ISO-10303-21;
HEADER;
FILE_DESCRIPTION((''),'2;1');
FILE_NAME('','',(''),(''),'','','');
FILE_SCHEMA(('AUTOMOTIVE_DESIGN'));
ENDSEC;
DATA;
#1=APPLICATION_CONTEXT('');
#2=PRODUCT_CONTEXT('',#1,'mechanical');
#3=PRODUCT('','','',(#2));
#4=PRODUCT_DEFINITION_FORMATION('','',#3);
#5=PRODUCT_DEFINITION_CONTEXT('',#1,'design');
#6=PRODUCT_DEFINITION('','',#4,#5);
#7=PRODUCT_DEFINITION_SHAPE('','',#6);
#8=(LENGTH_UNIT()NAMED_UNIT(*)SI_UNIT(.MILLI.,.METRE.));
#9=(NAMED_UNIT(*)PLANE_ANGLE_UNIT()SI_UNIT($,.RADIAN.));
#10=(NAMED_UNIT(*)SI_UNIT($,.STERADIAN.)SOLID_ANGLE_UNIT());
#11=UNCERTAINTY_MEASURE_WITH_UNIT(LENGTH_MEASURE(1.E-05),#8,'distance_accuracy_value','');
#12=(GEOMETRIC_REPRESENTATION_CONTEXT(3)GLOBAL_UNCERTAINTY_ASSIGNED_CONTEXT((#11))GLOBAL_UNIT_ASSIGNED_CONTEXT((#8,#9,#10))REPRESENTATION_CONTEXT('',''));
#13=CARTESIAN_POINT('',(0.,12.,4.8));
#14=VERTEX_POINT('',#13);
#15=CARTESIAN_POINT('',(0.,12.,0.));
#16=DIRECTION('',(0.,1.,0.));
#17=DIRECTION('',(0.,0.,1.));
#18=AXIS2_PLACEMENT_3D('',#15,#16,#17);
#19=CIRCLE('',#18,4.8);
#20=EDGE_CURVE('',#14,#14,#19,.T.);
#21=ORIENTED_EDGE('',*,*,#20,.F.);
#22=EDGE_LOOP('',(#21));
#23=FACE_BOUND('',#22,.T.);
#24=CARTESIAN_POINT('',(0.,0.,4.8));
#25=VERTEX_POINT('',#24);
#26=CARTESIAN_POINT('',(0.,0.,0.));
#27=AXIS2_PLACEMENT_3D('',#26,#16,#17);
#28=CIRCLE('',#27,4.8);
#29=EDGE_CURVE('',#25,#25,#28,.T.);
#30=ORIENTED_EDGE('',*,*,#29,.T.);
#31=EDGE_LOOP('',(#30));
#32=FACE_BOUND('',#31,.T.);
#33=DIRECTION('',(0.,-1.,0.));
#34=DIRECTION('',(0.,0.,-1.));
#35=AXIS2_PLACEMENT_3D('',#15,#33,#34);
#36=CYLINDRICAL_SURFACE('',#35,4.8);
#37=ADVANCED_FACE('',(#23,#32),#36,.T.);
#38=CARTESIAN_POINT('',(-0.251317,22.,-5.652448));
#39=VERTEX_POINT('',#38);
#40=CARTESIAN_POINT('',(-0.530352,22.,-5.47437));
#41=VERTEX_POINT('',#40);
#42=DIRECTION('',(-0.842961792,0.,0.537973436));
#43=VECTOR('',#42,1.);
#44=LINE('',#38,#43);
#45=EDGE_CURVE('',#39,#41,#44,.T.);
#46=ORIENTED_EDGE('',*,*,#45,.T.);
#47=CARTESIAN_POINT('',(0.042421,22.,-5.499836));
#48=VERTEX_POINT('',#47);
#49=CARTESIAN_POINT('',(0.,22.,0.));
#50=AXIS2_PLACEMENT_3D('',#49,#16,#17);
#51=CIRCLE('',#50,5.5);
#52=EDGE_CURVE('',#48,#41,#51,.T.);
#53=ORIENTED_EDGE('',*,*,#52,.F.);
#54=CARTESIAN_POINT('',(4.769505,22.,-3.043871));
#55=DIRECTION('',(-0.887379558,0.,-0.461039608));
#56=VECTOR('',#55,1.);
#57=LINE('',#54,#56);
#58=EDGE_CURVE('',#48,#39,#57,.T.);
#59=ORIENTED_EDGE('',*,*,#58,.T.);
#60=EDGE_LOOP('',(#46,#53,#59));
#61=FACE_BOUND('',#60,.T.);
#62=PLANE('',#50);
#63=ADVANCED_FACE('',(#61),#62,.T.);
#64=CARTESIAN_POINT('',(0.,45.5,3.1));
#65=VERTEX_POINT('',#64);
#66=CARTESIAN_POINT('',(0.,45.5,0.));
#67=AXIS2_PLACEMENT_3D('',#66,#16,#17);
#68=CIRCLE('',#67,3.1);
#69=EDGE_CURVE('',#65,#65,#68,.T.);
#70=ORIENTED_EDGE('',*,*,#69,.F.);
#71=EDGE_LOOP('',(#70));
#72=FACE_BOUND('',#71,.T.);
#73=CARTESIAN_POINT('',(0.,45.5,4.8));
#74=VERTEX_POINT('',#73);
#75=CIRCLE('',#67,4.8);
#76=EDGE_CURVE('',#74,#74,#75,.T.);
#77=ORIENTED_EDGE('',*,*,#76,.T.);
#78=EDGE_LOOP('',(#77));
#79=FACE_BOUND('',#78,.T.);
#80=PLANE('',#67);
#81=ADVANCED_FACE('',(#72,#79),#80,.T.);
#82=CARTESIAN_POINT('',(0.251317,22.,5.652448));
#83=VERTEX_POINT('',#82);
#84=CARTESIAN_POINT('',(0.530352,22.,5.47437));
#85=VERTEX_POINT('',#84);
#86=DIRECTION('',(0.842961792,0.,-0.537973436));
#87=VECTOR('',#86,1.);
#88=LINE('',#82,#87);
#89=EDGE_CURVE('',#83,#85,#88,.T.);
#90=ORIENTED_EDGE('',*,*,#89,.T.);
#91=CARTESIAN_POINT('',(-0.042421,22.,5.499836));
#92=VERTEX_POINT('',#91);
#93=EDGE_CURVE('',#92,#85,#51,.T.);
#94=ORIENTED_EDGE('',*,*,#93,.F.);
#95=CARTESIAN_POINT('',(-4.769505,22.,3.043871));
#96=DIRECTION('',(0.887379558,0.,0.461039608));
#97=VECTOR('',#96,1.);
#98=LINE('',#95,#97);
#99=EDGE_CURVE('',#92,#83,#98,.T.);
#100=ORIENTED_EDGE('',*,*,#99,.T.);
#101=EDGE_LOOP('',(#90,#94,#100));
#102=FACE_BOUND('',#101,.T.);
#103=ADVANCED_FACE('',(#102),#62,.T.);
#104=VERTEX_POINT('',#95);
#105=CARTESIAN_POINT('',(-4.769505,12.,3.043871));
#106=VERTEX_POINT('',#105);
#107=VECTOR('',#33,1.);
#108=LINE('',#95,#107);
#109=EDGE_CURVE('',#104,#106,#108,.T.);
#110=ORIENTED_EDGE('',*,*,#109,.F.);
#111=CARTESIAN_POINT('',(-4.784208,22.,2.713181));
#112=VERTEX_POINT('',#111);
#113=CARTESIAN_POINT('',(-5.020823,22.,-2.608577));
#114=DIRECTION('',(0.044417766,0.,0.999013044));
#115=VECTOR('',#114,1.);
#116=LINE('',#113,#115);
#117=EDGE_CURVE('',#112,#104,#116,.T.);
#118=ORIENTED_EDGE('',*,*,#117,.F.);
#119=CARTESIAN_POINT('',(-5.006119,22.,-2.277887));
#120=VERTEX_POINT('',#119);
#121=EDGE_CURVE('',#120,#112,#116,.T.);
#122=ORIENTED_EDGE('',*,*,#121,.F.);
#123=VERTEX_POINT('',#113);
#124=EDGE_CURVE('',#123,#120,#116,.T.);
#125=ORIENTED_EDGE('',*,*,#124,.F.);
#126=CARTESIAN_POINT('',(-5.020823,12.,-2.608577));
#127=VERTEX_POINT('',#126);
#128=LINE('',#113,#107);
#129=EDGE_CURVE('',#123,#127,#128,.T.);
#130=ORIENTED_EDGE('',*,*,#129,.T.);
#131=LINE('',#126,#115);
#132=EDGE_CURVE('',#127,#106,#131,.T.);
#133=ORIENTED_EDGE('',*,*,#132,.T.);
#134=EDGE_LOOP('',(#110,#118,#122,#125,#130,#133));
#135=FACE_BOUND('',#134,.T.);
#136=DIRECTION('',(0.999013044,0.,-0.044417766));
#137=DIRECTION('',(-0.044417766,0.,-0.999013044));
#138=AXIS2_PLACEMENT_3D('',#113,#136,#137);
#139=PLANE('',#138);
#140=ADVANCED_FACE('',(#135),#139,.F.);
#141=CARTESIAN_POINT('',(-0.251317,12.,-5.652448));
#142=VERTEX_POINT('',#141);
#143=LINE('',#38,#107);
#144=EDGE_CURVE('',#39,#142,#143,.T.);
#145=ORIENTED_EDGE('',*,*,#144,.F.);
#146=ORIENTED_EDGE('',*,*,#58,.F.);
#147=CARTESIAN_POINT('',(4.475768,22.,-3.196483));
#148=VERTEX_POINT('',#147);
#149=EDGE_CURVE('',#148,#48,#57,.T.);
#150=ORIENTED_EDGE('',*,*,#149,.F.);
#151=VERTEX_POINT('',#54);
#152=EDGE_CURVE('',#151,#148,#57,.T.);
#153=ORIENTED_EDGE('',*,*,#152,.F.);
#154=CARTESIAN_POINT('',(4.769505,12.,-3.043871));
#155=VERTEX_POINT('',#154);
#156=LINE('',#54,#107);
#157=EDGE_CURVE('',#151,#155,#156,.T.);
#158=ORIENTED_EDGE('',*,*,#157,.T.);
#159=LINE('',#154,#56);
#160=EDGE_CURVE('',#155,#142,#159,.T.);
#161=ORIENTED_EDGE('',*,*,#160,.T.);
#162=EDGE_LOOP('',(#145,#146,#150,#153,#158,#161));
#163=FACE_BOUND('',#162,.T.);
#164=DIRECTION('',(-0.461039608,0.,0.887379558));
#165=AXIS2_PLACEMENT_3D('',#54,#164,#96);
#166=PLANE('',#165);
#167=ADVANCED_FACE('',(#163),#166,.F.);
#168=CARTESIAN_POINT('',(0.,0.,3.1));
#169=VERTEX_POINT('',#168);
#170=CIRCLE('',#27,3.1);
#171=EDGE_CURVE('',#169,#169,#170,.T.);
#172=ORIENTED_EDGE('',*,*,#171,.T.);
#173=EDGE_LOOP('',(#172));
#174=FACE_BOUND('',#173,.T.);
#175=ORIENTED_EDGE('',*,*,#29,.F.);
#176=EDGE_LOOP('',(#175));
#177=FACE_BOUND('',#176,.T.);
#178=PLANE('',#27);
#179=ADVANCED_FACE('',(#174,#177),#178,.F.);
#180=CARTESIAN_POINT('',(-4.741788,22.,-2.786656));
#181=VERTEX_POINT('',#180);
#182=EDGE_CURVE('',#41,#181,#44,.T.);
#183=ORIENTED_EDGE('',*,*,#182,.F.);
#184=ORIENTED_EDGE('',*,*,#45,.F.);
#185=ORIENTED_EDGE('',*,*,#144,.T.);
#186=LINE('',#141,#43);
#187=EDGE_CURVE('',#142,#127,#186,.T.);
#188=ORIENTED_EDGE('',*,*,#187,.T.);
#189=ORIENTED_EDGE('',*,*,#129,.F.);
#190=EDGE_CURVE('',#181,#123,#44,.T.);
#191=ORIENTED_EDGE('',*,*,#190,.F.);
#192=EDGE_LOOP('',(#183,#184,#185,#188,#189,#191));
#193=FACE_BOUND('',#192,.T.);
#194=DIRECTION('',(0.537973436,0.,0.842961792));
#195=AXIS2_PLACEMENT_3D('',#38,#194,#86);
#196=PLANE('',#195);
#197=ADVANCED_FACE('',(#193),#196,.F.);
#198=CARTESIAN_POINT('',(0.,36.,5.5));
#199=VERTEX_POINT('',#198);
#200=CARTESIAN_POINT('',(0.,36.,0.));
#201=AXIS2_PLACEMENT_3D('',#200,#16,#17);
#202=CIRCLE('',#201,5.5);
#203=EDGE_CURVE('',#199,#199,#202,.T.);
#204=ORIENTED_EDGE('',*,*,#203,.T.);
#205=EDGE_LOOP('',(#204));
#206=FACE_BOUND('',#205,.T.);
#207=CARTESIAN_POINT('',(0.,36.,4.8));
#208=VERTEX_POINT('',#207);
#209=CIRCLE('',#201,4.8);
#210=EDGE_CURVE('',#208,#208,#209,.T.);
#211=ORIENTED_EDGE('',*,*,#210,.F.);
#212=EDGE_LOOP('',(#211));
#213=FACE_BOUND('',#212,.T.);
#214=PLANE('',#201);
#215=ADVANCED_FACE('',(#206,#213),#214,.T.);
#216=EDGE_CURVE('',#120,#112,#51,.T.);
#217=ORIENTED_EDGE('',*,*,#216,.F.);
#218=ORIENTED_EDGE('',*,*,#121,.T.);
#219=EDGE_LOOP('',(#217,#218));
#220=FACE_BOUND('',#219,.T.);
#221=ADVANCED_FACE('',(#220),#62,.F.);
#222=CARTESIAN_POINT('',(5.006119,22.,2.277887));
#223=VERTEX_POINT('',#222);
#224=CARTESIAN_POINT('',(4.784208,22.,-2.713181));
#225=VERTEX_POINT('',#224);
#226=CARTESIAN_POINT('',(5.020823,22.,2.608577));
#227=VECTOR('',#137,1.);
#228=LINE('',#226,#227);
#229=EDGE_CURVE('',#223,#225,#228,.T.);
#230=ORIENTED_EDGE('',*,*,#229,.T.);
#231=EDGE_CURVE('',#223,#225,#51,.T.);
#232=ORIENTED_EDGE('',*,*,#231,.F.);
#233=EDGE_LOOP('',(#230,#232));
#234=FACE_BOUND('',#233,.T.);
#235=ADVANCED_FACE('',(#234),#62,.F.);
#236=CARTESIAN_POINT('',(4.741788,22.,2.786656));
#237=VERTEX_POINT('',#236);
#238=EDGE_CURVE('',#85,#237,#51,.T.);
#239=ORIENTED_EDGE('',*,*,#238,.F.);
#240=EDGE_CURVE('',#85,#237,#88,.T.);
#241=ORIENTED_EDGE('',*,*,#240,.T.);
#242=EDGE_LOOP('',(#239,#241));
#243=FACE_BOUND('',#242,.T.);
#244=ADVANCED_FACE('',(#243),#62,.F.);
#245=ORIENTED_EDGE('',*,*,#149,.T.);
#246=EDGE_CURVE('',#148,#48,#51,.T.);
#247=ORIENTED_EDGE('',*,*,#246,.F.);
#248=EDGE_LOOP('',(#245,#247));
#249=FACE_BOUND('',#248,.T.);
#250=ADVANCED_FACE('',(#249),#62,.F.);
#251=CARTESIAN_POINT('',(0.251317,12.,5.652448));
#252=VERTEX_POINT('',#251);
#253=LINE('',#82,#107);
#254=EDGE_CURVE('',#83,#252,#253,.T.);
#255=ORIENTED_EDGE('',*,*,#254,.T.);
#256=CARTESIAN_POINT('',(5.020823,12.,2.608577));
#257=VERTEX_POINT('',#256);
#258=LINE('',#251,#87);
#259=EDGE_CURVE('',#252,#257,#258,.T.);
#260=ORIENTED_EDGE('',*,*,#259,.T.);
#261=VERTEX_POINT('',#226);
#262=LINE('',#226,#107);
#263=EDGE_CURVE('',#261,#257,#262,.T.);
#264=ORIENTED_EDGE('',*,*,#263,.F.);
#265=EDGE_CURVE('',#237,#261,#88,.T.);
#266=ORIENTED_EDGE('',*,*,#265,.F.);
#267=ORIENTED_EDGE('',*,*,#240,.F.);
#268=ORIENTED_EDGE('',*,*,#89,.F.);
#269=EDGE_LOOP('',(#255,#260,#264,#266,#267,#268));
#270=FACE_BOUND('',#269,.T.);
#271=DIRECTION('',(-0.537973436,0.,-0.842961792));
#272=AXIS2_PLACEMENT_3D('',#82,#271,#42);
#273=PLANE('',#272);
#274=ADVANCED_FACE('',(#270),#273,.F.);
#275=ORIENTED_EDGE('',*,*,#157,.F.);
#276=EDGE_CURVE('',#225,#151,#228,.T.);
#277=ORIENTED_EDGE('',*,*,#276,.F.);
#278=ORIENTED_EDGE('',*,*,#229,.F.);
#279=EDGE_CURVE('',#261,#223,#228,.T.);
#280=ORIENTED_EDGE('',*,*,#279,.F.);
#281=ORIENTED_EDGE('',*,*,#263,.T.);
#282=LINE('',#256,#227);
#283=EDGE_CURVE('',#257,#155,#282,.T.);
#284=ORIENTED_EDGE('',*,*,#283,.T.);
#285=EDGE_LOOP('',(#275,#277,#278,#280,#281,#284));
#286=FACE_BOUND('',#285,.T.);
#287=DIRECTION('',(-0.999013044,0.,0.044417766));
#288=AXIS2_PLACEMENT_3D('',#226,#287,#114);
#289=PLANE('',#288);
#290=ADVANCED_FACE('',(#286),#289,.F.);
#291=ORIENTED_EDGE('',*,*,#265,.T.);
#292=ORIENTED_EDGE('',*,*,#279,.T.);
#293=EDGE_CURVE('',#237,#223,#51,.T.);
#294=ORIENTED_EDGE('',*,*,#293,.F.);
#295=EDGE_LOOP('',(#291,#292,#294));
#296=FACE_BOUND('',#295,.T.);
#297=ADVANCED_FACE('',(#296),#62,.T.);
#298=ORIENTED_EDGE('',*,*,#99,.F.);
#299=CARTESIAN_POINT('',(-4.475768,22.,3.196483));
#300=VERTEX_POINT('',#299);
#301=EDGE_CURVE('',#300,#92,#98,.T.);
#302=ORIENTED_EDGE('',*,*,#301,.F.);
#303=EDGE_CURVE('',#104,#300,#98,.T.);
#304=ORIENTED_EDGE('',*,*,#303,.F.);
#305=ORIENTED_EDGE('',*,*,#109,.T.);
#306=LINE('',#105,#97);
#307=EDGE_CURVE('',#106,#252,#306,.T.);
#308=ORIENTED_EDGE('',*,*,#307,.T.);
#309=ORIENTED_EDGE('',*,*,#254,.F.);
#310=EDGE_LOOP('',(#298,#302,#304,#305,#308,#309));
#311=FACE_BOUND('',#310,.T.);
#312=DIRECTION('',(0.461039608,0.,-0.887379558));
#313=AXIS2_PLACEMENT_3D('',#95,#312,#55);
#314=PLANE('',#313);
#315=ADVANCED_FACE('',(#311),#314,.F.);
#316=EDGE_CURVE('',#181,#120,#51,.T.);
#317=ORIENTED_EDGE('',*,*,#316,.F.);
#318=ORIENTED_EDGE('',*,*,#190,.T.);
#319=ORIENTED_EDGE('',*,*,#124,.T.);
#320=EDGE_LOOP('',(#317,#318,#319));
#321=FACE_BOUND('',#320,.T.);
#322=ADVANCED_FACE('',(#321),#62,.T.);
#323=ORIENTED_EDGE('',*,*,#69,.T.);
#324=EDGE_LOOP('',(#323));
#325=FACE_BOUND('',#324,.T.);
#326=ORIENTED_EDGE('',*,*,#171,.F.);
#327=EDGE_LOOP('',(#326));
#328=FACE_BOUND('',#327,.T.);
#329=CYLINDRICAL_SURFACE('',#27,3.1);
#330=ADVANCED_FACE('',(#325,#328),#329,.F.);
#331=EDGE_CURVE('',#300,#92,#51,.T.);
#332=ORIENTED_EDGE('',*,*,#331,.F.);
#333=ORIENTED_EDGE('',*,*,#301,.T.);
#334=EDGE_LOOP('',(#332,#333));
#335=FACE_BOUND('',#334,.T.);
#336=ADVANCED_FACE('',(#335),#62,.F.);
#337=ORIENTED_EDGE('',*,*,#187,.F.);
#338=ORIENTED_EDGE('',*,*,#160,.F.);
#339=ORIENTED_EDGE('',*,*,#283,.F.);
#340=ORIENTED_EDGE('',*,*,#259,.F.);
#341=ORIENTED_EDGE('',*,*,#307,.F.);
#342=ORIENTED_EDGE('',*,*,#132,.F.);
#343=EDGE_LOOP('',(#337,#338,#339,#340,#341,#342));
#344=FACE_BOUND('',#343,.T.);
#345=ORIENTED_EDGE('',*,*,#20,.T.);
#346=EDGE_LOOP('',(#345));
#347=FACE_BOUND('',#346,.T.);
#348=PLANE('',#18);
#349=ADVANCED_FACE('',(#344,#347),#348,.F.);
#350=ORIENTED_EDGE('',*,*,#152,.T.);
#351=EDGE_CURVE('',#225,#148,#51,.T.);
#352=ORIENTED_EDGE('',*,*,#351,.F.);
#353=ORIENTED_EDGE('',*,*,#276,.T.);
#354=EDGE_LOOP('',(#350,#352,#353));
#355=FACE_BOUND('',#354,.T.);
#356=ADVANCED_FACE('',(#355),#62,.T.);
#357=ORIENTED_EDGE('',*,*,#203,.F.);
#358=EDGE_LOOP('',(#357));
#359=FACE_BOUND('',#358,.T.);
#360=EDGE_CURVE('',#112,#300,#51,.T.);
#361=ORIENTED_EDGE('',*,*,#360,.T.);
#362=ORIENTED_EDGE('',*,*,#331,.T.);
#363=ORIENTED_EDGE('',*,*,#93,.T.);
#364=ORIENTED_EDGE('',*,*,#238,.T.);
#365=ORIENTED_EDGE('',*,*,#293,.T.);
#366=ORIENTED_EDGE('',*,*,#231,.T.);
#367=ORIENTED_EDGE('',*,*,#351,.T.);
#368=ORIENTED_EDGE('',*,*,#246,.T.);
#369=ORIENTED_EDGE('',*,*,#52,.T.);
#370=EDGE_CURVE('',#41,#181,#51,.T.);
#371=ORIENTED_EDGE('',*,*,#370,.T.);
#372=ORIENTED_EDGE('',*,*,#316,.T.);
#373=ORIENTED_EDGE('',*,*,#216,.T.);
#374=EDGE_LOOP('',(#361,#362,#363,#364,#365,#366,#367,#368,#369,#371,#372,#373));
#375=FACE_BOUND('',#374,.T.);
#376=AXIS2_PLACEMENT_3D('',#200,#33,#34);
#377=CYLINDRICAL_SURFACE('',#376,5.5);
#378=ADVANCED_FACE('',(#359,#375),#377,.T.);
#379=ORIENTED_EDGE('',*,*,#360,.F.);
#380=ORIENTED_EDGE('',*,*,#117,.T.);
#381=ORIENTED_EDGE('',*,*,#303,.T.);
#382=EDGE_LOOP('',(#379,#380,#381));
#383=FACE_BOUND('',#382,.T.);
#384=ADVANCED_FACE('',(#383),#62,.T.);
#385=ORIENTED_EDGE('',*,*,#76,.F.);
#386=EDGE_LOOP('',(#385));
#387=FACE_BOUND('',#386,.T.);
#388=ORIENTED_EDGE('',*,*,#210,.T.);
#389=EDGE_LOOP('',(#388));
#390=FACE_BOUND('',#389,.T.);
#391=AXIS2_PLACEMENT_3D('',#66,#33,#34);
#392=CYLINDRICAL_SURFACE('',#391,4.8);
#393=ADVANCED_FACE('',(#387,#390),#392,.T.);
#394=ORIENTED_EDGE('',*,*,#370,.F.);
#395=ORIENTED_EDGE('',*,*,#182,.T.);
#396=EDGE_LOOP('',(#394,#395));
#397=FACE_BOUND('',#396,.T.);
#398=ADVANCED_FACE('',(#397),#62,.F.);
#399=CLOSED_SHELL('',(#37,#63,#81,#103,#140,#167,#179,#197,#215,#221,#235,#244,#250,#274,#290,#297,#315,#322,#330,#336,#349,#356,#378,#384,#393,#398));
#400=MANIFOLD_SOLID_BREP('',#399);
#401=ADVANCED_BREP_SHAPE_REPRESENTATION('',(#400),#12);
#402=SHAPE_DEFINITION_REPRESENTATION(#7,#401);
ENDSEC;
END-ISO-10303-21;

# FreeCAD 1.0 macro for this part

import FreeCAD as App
import Part
import Sketcher


def add_polygon(sketch, points):
    """Adds a closed chain of lines whose ends are joined by coincident constraints."""
    first, n = sketch.GeometryCount, len(points)
    for a, b in zip(points, points[1:] + points[:1]):
        sketch.addGeometry(Part.LineSegment(App.Vector(*a, 0), App.Vector(*b, 0)), False)
    for i in range(n):
        sketch.addConstraint(Sketcher.Constraint("Coincident", first + i, 2, first + (i + 1) % n, 1))

doc = App.newDocument("Part")
params = doc.addObject("Spreadsheet::Sheet", "Params")
for row, (alias, value) in enumerate([
    ("sketch1_diameter", "9.6 mm"),
    ("pad1_length", "12 mm"),
    ("pad2_length", "10 mm"),
    ("sketch3_diameter", "11 mm"),
    ("pad3_length", "14 mm"),
    ("sketch4_diameter", "9.6 mm"),
    ("pad4_length", "9.5 mm"),
    ("sketch5_diameter", "6.2 mm"),
], start=1):
    params.set(f"A{row}", alias)
    params.set(f"B{row}", "=" + value)
    params.setAlias(f"B{row}", alias)

body = doc.addObject("PartDesign::Body", "Body")

# Sketch on XZ plane
sketch1 = doc.addObject("Sketcher::SketchObject", "Sketch")
body.addObject(sketch1)
sketch1.AttachmentSupport = (doc.XZ_Plane, [""])
sketch1.MapMode = "FlatFace"
sketch1.addGeometry(Part.Circle(App.Vector(0, 0, 0), App.Vector(0, 0, 1), 4.8), False)
sketch1.addConstraint([
    Sketcher.Constraint("Coincident", 0, 3, -1, 1),
    Sketcher.Constraint("Diameter", 0, 9.6),
])
sketch1.setExpression("Constraints[1]", "Params.sketch1_diameter")
pad1 = doc.addObject("PartDesign::Pad", "Pad")
body.addObject(pad1)
pad1.Profile = sketch1
pad1.setExpression("Length", "Params.pad1_length")
pad1.Reversed = True

# Sketch on XZ plane
sketch2 = doc.addObject("Sketcher::SketchObject", "Sketch001")
body.addObject(sketch2)
sketch2.AttachmentSupport = (doc.XZ_Plane, [""])
sketch2.MapMode = "FlatFace"
sketch2.AttachmentOffset = App.Placement(App.Vector(0, 0, -12), App.Rotation())
add_polygon(sketch2, [(5, 3), (5, -3), (0, -6), (-5, -3), (-5, 3), (0, 6)])  # lines 0-5
sketch2.addConstraint([
    Sketcher.Constraint("Symmetric", 0, 2, 3, 2, -1, 1),
    Sketcher.Constraint("Symmetric", 1, 2, 4, 2, -1, 1),
    Sketcher.Constraint("Symmetric", 2, 2, 5, 2, -1, 1),
    Sketcher.Constraint("Equal", 0, 1),
    Sketcher.Constraint("Equal", 1, 2),
    Sketcher.Constraint("DistanceY", 0, 2, -1, 1, 3.043871),
    Sketcher.Constraint("DistanceY", 1, 2, -1, 1, 5.652448),
    Sketcher.Constraint("DistanceY", 1, 2, 2, 2, 3.043871),
    Sketcher.Constraint("DistanceX", 3, 2, 1, 2, 4.518188),
])
pad2 = doc.addObject("PartDesign::Pad", "Pad001")
body.addObject(pad2)
pad2.Profile = sketch2
pad2.setExpression("Length", "Params.pad2_length")
pad2.Reversed = True

# Sketch on XZ plane
sketch3 = doc.addObject("Sketcher::SketchObject", "Sketch002")
body.addObject(sketch3)
sketch3.AttachmentSupport = (doc.XZ_Plane, [""])
sketch3.MapMode = "FlatFace"
sketch3.AttachmentOffset = App.Placement(App.Vector(0, 0, -22), App.Rotation())
sketch3.addGeometry(Part.Circle(App.Vector(0, 0, 0), App.Vector(0, 0, 1), 6), False)
sketch3.addConstraint([
    Sketcher.Constraint("Coincident", 0, 3, -1, 1),
    Sketcher.Constraint("Diameter", 0, 11.0),
])
sketch3.setExpression("Constraints[1]", "Params.sketch3_diameter")
pad3 = doc.addObject("PartDesign::Pad", "Pad002")
body.addObject(pad3)
pad3.Profile = sketch3
pad3.setExpression("Length", "Params.pad3_length")
pad3.Reversed = True

# Sketch on XZ plane
sketch4 = doc.addObject("Sketcher::SketchObject", "Sketch003")
body.addObject(sketch4)
sketch4.AttachmentSupport = (doc.XZ_Plane, [""])
sketch4.MapMode = "FlatFace"
sketch4.AttachmentOffset = App.Placement(App.Vector(0, 0, -36), App.Rotation())
sketch4.addGeometry(Part.Circle(App.Vector(0, 0, 0), App.Vector(0, 0, 1), 4.8), False)
sketch4.addConstraint([
    Sketcher.Constraint("Coincident", 0, 3, -1, 1),
    Sketcher.Constraint("Diameter", 0, 9.6),
])
sketch4.setExpression("Constraints[1]", "Params.sketch4_diameter")
pad4 = doc.addObject("PartDesign::Pad", "Pad003")
body.addObject(pad4)
pad4.Profile = sketch4
pad4.setExpression("Length", "Params.pad4_length")
pad4.Reversed = True

# Sketch on XZ plane
sketch5 = doc.addObject("Sketcher::SketchObject", "Sketch004")
body.addObject(sketch5)
sketch5.AttachmentSupport = (doc.XZ_Plane, [""])
sketch5.MapMode = "FlatFace"
sketch5.AttachmentOffset = App.Placement(App.Vector(0, 0, -45.5), App.Rotation())
sketch5.addGeometry(Part.Circle(App.Vector(0, 0, 0), App.Vector(0, 0, 1), 3.1), False)
sketch5.addConstraint([
    Sketcher.Constraint("Coincident", 0, 3, -1, 1),
    Sketcher.Constraint("Diameter", 0, 6.2),
])
sketch5.setExpression("Constraints[1]", "Params.sketch5_diameter")
pocket1 = doc.addObject("PartDesign::Pocket", "Pocket")
body.addObject(pocket1)
pocket1.Profile = sketch5
pocket1.Type = "ThroughAll"
pocket1.Reversed = True

doc.recompute()
